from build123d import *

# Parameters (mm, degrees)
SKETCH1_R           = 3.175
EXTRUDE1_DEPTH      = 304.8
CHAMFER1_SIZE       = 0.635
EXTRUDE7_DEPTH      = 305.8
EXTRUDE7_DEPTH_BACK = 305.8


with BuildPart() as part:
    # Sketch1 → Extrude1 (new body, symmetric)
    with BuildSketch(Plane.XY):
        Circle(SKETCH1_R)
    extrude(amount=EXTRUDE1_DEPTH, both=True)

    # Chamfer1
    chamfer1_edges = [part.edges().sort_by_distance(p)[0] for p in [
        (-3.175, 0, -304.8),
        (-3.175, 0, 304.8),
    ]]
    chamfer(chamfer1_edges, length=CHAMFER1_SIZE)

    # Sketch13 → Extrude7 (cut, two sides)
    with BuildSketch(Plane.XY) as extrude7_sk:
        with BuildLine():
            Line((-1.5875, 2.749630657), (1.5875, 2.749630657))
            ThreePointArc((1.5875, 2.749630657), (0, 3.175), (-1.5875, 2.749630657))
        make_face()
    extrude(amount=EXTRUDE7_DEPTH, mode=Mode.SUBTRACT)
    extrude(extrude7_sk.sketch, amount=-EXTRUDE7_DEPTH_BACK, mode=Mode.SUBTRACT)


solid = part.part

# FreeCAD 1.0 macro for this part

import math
import FreeCAD as App
import Part
import Sketcher

V = App.Vector
Q = App.Units.Quantity


def edges_at(feature, points):
    """Names of the edges that pass closest to the given points."""
    edges = feature.Shape.Edges
    near = lambda p: min(range(len(edges)), key=lambda i: edges[i].distToShape(Part.Vertex(*p))[0])
    return sorted({f"Edge{near(p) + 1}" for p in points})

doc = App.newDocument("Part")
body = doc.addObject("PartDesign::Body", "Body")

# Sketch on XY plane
sketch1 = body.newObject("Sketcher::SketchObject", "Sketch")
sketch1.AttachmentSupport = (doc.getObject("XY_Plane"), [""])
sketch1.MapMode = "FlatFace"
sketch1.addGeometry(Part.Circle(V(0, 0, 0), V(0, 0, 1), 3.2), False)
sketch1.addConstraint(Sketcher.Constraint("Coincident", 0, 3, -1, 1))
sketch1.addConstraint(Sketcher.Constraint("Diameter", 0, Q("0.25 in")))
pad1 = body.newObject("PartDesign::Pad", "Pad")
pad1.Profile = sketch1
pad1.Length = Q("24 in")
pad1.Midplane = True
doc.recompute()

chamfer = body.newObject("PartDesign::Chamfer", "Chamfer")
chamfer.Base = (pad1, edges_at(pad1, [(-3.175, 0, -304.8), (-3.175, 0, 304.8)]))
chamfer.Size = Q("0.025 in")

# Sketch on XY plane
sketch2 = body.newObject("Sketcher::SketchObject", "Sketch001")
sketch2.AttachmentSupport = (doc.getObject("XY_Plane"), [""])
sketch2.MapMode = "FlatFace"
sketch2.addGeometry(Part.LineSegment(V(-1.6, 2.7, 0), V(1.6, 2.7, 0)), False)
sketch2.addGeometry(Part.ArcOfCircle(Part.Circle(V(0, 0, 0), V(0, 0, 1), 3.2), math.radians(60), math.radians(120)), False)
sketch2.addConstraint(Sketcher.Constraint("Coincident", 0, 1, 1, 2))
sketch2.addConstraint(Sketcher.Constraint("Coincident", 1, 1, 0, 2))
sketch2.addConstraint(Sketcher.Constraint("Horizontal", 0))
sketch2.addConstraint(Sketcher.Constraint("Coincident", 1, 3, -1, 1))
sketch2.addConstraint(Sketcher.Constraint("Radius", 1, Q("0.125 in")))
sketch2.addConstraint(Sketcher.Constraint("DistanceX", 0, 1, 0, 2, Q("0.125 in")))
pocket1 = body.newObject("PartDesign::Pocket", "Pocket")
pocket1.Profile = sketch2
pocket1.Type = "ThroughAll"
pocket1.Midplane = True

doc.recompute()
